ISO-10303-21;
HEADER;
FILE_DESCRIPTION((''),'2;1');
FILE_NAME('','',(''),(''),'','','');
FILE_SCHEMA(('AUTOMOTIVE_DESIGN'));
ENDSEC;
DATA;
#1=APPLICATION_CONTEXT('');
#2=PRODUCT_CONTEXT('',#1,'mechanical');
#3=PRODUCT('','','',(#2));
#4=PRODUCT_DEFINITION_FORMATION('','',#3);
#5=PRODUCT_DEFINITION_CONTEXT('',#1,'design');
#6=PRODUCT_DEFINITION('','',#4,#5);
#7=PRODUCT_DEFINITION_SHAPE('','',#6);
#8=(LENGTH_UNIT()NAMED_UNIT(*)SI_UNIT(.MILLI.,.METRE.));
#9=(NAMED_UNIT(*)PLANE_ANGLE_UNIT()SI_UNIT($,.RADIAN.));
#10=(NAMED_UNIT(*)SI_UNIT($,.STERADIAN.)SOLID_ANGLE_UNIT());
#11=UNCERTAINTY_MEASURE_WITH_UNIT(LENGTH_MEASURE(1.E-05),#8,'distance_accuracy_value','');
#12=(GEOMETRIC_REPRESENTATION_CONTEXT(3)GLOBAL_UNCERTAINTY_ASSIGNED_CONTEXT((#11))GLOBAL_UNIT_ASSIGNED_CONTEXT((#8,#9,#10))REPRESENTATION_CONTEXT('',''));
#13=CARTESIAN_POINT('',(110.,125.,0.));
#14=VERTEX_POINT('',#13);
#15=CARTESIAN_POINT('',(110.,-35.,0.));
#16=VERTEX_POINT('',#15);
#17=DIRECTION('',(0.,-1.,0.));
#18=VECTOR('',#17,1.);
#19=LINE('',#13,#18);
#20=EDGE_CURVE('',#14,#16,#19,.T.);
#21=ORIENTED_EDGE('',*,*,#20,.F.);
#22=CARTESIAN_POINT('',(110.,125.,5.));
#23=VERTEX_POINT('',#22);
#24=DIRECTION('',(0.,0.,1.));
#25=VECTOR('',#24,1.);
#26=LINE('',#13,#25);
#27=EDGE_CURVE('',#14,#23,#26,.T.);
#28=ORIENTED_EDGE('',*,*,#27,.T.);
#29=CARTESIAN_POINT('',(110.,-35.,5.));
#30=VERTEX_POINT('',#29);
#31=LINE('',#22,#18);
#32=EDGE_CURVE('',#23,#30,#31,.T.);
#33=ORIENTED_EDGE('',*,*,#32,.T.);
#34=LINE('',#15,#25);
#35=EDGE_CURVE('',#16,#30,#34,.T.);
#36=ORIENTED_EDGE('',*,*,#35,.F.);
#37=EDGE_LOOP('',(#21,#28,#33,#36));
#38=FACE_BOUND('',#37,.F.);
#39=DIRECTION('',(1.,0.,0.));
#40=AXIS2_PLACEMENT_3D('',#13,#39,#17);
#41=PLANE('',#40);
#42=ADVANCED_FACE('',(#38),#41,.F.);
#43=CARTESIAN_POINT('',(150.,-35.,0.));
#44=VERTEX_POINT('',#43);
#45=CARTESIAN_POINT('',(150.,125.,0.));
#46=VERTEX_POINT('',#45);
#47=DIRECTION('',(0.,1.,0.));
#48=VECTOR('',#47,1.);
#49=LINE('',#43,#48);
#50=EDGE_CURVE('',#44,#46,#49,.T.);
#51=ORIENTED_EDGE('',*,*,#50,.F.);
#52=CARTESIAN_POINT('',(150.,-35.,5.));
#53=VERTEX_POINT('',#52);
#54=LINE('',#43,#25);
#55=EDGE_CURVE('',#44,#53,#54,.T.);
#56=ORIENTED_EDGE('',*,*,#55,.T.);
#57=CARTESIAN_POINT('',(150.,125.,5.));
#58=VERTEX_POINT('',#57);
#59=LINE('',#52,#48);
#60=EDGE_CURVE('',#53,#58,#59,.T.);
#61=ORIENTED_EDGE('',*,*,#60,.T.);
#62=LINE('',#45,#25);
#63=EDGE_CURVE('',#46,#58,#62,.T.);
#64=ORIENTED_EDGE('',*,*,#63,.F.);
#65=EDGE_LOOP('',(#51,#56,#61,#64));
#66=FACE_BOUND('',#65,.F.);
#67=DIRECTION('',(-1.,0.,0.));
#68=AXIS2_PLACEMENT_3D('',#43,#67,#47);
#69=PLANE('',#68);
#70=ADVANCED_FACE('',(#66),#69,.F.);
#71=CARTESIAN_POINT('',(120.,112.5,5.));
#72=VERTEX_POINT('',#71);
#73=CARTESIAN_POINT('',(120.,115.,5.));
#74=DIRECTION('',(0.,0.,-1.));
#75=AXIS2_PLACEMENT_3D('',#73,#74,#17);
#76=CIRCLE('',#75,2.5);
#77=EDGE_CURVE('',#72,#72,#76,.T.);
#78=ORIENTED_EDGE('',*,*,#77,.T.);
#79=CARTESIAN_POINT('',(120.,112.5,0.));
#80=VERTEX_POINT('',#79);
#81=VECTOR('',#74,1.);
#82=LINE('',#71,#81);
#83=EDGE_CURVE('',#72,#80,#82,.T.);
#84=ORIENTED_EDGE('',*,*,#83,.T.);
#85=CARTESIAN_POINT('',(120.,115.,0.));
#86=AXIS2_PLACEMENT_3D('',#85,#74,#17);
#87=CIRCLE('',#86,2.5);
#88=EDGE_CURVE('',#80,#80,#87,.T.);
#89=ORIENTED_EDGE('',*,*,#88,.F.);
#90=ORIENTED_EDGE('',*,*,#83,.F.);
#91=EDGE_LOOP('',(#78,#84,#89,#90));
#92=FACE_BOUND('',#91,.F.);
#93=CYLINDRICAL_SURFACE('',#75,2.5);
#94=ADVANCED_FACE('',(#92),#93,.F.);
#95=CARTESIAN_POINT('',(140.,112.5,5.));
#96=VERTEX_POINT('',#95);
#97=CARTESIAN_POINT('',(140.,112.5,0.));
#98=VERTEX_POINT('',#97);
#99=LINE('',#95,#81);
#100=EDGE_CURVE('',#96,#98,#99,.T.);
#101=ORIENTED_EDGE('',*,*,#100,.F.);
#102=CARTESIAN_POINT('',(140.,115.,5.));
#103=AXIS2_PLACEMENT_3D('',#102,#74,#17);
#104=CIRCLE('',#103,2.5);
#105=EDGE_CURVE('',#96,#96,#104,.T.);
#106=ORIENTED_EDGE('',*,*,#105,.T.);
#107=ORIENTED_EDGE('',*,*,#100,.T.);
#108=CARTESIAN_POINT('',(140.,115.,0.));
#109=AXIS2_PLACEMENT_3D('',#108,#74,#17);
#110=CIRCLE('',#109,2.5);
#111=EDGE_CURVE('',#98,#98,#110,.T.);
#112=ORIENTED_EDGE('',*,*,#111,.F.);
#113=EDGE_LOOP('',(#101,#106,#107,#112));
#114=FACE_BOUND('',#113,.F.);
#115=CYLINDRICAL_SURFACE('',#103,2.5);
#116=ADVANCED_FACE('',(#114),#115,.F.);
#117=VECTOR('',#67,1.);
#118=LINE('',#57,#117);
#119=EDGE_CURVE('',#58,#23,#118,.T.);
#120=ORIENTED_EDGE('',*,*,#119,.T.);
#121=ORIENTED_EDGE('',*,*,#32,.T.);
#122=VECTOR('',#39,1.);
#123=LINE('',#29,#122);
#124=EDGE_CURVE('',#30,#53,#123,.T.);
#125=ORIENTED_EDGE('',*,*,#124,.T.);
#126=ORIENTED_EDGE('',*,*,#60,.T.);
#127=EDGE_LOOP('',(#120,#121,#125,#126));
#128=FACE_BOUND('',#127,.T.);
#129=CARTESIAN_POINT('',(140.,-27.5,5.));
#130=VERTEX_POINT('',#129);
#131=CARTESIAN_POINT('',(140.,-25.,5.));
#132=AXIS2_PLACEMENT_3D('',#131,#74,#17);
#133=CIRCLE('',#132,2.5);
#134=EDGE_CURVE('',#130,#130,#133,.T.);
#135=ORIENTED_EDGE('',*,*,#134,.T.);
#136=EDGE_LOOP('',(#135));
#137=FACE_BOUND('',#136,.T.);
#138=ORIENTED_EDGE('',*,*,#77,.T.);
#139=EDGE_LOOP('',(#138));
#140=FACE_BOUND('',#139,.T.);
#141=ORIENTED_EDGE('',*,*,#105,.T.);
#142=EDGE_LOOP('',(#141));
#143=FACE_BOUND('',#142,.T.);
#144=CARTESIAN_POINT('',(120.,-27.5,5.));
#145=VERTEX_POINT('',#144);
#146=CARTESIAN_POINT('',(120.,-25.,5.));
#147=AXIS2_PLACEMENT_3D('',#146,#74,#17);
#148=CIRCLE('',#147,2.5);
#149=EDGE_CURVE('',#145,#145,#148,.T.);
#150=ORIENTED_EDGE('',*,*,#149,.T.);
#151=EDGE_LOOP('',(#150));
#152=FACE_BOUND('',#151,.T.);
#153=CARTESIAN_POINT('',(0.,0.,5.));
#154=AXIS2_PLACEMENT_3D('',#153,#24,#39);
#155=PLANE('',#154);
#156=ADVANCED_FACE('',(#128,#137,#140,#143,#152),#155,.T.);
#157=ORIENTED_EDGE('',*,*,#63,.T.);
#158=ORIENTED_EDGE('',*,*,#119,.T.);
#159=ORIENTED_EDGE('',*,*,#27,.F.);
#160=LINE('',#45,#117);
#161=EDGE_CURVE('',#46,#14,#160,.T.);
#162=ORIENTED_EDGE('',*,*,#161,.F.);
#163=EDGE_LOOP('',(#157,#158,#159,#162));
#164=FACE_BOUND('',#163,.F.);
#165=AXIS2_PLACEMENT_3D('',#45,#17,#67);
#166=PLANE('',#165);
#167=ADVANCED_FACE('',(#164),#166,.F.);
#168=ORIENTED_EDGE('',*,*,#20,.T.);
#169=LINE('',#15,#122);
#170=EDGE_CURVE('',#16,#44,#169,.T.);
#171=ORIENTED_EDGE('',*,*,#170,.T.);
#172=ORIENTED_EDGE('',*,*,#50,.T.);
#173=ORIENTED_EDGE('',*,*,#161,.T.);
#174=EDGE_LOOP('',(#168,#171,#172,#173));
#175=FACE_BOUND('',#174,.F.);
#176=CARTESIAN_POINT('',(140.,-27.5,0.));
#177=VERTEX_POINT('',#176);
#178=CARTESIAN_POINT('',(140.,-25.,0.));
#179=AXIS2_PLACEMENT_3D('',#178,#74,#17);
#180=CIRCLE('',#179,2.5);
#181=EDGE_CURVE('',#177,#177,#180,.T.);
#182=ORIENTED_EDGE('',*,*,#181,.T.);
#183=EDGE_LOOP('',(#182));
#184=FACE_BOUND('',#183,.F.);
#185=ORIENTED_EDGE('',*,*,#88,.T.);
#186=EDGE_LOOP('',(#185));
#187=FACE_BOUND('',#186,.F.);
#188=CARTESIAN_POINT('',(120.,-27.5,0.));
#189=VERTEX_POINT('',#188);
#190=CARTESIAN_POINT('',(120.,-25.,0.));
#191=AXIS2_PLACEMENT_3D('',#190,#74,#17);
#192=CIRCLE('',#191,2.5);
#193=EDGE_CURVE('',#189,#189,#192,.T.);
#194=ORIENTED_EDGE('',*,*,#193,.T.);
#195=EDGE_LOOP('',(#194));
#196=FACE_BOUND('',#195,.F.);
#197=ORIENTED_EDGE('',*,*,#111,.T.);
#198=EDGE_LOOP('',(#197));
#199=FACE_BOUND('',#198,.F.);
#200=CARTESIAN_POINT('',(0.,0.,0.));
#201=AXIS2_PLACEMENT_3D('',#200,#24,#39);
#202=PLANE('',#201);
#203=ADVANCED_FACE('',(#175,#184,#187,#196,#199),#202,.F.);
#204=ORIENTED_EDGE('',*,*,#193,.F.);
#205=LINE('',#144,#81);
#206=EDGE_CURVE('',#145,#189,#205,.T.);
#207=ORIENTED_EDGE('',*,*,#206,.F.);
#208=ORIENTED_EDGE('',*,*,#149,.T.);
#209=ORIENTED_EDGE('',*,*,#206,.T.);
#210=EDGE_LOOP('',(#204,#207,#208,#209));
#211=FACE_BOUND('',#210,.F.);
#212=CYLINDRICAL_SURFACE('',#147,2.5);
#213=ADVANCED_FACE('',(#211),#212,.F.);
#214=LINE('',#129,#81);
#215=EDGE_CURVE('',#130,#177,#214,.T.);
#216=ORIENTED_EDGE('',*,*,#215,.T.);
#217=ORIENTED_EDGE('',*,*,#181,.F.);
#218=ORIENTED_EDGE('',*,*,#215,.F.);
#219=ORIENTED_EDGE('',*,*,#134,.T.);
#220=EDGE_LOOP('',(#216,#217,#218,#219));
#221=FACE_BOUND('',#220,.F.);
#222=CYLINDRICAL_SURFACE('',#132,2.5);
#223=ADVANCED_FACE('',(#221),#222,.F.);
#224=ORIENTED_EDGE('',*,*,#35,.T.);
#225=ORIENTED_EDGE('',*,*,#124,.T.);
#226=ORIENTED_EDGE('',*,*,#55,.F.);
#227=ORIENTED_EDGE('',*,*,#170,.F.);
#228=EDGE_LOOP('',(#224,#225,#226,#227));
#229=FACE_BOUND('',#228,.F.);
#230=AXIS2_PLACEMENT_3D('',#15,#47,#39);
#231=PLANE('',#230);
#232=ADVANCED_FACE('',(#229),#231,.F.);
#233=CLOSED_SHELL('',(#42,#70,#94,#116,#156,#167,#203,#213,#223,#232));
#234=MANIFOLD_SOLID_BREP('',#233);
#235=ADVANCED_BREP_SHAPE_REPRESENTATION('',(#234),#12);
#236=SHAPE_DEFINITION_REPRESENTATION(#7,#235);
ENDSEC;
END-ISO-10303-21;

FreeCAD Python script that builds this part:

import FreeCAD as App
import Part
import Sketcher

V = App.Vector
Q = App.Units.Quantity


def add_polygon(sketch, points):
    """Adds a closed chain of lines whose ends are joined by coincident constraints."""
    first, n = sketch.GeometryCount, len(points)
    for a, b in zip(points, points[1:] + points[:1]):
        sketch.addGeometry(Part.LineSegment(App.Vector(*a, 0), App.Vector(*b, 0)), False)
    for i in range(n):
        sketch.addConstraint(Sketcher.Constraint("Coincident", first + i, 2, first + (i + 1) % n, 1))

doc = App.newDocument("Part")
body = doc.addObject("PartDesign::Body", "Body")

sketch1 = doc.addObject("Sketcher::SketchObject", "Sketch")
body.addObject(sketch1)
sketch1.AttachmentSupport = (doc.XY_Plane, [""])
sketch1.MapMode = "FlatFace"
add_polygon(sketch1, [(150, -35), (150, 125), (110, 125), (110, -35)])
sketch1.addConstraint([
    Sketcher.Constraint("Vertical", 0),
    Sketcher.Constraint("Horizontal", 1),
    Sketcher.Constraint("Vertical", 2),
    Sketcher.Constraint("Horizontal", 3),
    Sketcher.Constraint("DistanceX", 1, 2, 1, 1, Q("40 mm")),
    Sketcher.Constraint("DistanceY", 0, 1, 0, 2, Q("160 mm")),
    Sketcher.Constraint("DistanceX", -1, 1, 0, 2, Q("150 mm")),
    Sketcher.Constraint("DistanceY", -1, 1, 0, 2, Q("125 mm")),
])
pad1 = doc.addObject("PartDesign::Pad", "Pad")
body.addObject(pad1)
pad1.Profile = sketch1
pad1.Length = 5

sketch2 = doc.addObject("Sketcher::SketchObject", "Sketch001")
body.addObject(sketch2)
sketch2.AttachmentSupport = (doc.XY_Plane, [""])
sketch2.MapMode = "FlatFace"
sketch2.AttachmentOffset = App.Placement(V(0, 0, 5), App.Rotation())
sketch2.addGeometry([
    Part.Circle(V(120, 115, 0), V(0, 0, 1), 2.5),
    Part.Circle(V(140, 115, 0), V(0, 0, 1), 2.5),
    Part.Circle(V(120, -25, 0), V(0, 0, 1), 2.5),
    Part.Circle(V(140, -25, 0), V(0, 0, 1), 2.5),
], False)
sketch2.addConstraint([
    Sketcher.Constraint("Equal", 0, 1),
    Sketcher.Constraint("Equal", 1, 2),
    Sketcher.Constraint("Equal", 2, 3),
    Sketcher.Constraint("Horizontal", 0, 3, 1, 3),
    Sketcher.Constraint("Horizontal", 2, 3, 3, 3),
    Sketcher.Constraint("Vertical", 0, 3, 2, 3),
    Sketcher.Constraint("Vertical", 1, 3, 3, 3),
    Sketcher.Constraint("Diameter", 0, Q("5 mm")),
    Sketcher.Constraint("DistanceX", -1, 1, 0, 3, Q("120 mm")),
    Sketcher.Constraint("DistanceY", -1, 1, 0, 3, Q("115 mm")),
    Sketcher.Constraint("DistanceX", -1, 1, 1, 3, Q("140 mm")),
    Sketcher.Constraint("DistanceY", 2, 3, -1, 1, Q("25 mm")),
])
doc.recompute()
hole = doc.addObject("PartDesign::Hole", "Hole")
body.addObject(hole)
hole.Profile = sketch2
hole.ThreadType = "None"
hole.Diameter = 5
hole.DepthType = "ThroughAll"

doc.recompute()
